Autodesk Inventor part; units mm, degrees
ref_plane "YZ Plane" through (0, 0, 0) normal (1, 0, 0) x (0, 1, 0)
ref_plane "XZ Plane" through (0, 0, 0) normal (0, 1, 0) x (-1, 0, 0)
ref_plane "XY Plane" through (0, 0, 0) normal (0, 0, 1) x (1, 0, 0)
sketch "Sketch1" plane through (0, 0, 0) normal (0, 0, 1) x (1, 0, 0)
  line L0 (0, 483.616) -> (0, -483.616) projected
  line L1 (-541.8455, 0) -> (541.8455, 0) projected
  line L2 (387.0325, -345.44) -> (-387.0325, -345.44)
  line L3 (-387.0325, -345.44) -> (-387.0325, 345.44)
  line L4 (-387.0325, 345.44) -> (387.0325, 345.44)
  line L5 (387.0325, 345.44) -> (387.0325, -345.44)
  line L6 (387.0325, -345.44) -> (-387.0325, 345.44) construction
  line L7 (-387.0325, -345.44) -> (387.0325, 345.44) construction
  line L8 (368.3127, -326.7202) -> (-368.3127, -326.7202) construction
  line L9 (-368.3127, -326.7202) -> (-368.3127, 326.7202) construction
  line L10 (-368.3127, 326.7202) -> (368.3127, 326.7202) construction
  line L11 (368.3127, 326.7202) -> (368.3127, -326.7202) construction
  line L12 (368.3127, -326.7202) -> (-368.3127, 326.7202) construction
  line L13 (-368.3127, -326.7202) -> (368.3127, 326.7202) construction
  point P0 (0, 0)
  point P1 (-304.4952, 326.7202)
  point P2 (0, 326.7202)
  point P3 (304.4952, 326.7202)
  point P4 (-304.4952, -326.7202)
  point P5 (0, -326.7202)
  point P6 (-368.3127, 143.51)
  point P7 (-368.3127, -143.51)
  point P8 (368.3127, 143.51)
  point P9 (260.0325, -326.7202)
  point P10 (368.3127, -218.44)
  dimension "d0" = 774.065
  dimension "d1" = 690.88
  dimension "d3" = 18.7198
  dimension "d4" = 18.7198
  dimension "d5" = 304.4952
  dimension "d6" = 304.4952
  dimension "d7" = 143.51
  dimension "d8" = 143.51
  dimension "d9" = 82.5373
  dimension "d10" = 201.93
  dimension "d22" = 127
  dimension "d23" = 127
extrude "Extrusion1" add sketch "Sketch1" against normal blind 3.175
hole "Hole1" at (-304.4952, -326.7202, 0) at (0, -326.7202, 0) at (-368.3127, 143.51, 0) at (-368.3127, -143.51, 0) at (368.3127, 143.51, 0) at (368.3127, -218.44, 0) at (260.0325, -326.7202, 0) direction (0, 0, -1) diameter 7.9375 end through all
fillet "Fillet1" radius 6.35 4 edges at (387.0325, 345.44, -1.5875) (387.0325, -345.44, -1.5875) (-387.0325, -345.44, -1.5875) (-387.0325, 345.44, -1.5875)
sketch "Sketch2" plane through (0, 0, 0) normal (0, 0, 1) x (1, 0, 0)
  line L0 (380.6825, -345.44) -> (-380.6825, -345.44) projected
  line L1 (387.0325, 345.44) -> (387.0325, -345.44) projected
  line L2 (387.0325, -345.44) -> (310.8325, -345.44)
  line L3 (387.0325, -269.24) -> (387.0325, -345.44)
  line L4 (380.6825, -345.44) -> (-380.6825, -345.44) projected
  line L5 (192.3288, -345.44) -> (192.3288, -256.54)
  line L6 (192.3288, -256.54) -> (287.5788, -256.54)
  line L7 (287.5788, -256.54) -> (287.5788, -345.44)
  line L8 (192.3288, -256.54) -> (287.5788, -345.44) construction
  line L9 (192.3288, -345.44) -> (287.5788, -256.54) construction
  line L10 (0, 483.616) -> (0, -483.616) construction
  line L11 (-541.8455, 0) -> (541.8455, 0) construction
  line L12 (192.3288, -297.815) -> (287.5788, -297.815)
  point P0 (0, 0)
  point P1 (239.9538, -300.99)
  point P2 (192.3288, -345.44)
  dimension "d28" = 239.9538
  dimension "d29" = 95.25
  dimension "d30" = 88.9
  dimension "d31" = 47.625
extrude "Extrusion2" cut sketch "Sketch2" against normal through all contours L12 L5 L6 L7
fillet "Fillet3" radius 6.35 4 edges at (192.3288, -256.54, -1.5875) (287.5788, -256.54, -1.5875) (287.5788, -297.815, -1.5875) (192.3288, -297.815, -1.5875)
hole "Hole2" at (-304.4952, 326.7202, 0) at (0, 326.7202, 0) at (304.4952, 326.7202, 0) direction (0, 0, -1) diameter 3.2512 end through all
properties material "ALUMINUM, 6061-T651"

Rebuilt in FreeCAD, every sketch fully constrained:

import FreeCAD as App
import Part
import Sketcher
Q = App.Units.Quantity


def edges_at(feature, points):
    """Names of the edges that pass closest to the given points."""
    edges = feature.Shape.Edges
    near = lambda p: min(range(len(edges)), key=lambda i: edges[i].distToShape(Part.Vertex(*p))[0])
    return sorted({f"Edge{near(p) + 1}" for p in points})

doc = App.newDocument("Part")
body = doc.addObject("PartDesign::Body", "Body")

sketch1 = doc.addObject("Sketcher::SketchObject", "Sketch")
body.addObject(sketch1)
sketch1.AttachmentSupport = (doc.XY_Plane, [""])
sketch1.MapMode = "FlatFace"
sketch1.addGeometry([
    Part.LineSegment(App.Vector(387.0325, 345.44, 0), App.Vector(-387.0325, 345.44, 0)),
    Part.LineSegment(App.Vector(-387.0325, 345.44, 0), App.Vector(-387.0325, -345.44, 0)),
    Part.LineSegment(App.Vector(-387.0325, -345.44, 0), App.Vector(387.0325, -345.44, 0)),
    Part.LineSegment(App.Vector(387.0325, -345.44, 0), App.Vector(387.0325, 345.44, 0)),
], False)
sketch1.addConstraint([
    Sketcher.Constraint("Coincident", 0, 2, 1, 1),
    Sketcher.Constraint("Coincident", 1, 2, 2, 1),
    Sketcher.Constraint("Coincident", 2, 2, 3, 1),
    Sketcher.Constraint("Coincident", 3, 2, 0, 1),
    Sketcher.Constraint("Horizontal", 0),
    Sketcher.Constraint("Vertical", 1),
    Sketcher.Constraint("Horizontal", 2),
    Sketcher.Constraint("Vertical", 3),
    Sketcher.Constraint("Symmetric", 0, 2, 2, 2, -1, 1),
    Sketcher.Constraint("DistanceY", 1, 2, 1, 1, Q("27.2 in")),
    Sketcher.Constraint("DistanceX", 0, 2, 0, 1, Q("30.475 in")),
])
pad1 = doc.addObject("PartDesign::Pad", "Pad")
body.addObject(pad1)
pad1.Profile = sketch1
pad1.Length = Q("0.125 in")
pad1.Reversed = True

sketch2 = doc.addObject("Sketcher::SketchObject", "Sketch001")
body.addObject(sketch2)
sketch2.AttachmentSupport = (doc.XY_Plane, [""])
sketch2.MapMode = "FlatFace"
sketch2.addGeometry([
    Part.Circle(App.Vector(-304.4952, -326.7202, 0), App.Vector(0, 0, 1), 3.96875),
    Part.Circle(App.Vector(0, -326.7202, 0), App.Vector(0, 0, 1), 3.96875),
    Part.Circle(App.Vector(-368.3127, 143.51, 0), App.Vector(0, 0, 1), 3.96875),
    Part.Circle(App.Vector(-368.3127, -143.51, 0), App.Vector(0, 0, 1), 3.96875),
    Part.Circle(App.Vector(368.3127, 143.51, 0), App.Vector(0, 0, 1), 3.96875),
    Part.Circle(App.Vector(368.3127, -218.44, 0), App.Vector(0, 0, 1), 3.96875),
    Part.Circle(App.Vector(260.0325, -326.7202, 0), App.Vector(0, 0, 1), 3.96875),
], False)
sketch2.addConstraint([
    Sketcher.Constraint("Equal", 0, 1),
    Sketcher.Constraint("Equal", 1, 2),
    Sketcher.Constraint("Equal", 2, 3),
    Sketcher.Constraint("Equal", 3, 4),
    Sketcher.Constraint("Equal", 4, 5),
    Sketcher.Constraint("Equal", 5, 6),
    Sketcher.Constraint("Symmetric", 3, 3, 4, 3, -1, 1),
    Sketcher.Constraint("Symmetric", 2, 3, 4, 3, -2),
    Sketcher.Constraint("PointOnObject", 1, 3, -2),
    Sketcher.Constraint("Horizontal", 0, 3, 1, 3),
    Sketcher.Constraint("Horizontal", 1, 3, 6, 3),
    Sketcher.Constraint("Vertical", 4, 3, 5, 3),
    Sketcher.Constraint("Diameter", 0, Q("0.3125 in")),
    Sketcher.Constraint("DistanceY", 5, 3, -1, 1, Q("8.6 in")),
    Sketcher.Constraint("DistanceY", 3, 3, 2, 3, Q("11.3 in")),
    Sketcher.Constraint("DistanceX", 0, 3, -1, 1, Q("11.988 in")),
    Sketcher.Constraint("DistanceY", 0, 3, -1, 1, Q("12.863 in")),
    Sketcher.Constraint("DistanceX", 2, 3, 4, 3, Q("29.001 in")),
    Sketcher.Constraint("DistanceX", 6, 3, 5, 3, Q("4.263 in")),
])
doc.recompute()
hole = doc.addObject("PartDesign::Hole", "Hole")
body.addObject(hole)
hole.Profile = sketch2
hole.ThreadType = "None"
hole.Diameter = Q("0.3125 in")
hole.DepthType = "ThroughAll"
doc.recompute()

fillet = doc.addObject("PartDesign::Fillet", "Fillet")
body.addObject(fillet)
fillet.Base = (hole, edges_at(hole, [
    (387.033, 345.44, -1.587),
    (387.033, -345.44, -1.587),
    (-387.033, -345.44, -1.587),
    (-387.033, 345.44, -1.587),
]))
fillet.Radius = Q("0.25 in")

sketch3 = doc.addObject("Sketcher::SketchObject", "Sketch002")
body.addObject(sketch3)
sketch3.AttachmentSupport = (doc.XY_Plane, [""])
sketch3.MapMode = "FlatFace"
sketch3.addGeometry([
    Part.LineSegment(App.Vector(192.3288, -297.815, 0), App.Vector(287.5788, -297.815, 0)),
    Part.LineSegment(App.Vector(287.5788, -297.815, 0), App.Vector(287.5788, -256.54, 0)),
    Part.LineSegment(App.Vector(287.5788, -256.54, 0), App.Vector(192.3288, -256.54, 0)),
    Part.LineSegment(App.Vector(192.3288, -256.54, 0), App.Vector(192.3288, -297.815, 0)),
], False)
sketch3.addConstraint([
    Sketcher.Constraint("Coincident", 0, 2, 1, 1),
    Sketcher.Constraint("Coincident", 1, 2, 2, 1),
    Sketcher.Constraint("Coincident", 2, 2, 3, 1),
    Sketcher.Constraint("Coincident", 3, 2, 0, 1),
    Sketcher.Constraint("Horizontal", 0),
    Sketcher.Constraint("Vertical", 1),
    Sketcher.Constraint("Horizontal", 2),
    Sketcher.Constraint("Vertical", 3),
    Sketcher.Constraint("DistanceX", 0, 1, 0, 2, Q("3.75 in")),
    Sketcher.Constraint("DistanceY", 1, 2, -1, 1, Q("10.1 in")),
    Sketcher.Constraint("DistanceY", 1, 1, 1, 2, Q("1.625 in")),
    Sketcher.Constraint("DistanceX", -1, 1, 0, 2, Q("11.322 in")),
])
pocket1 = doc.addObject("PartDesign::Pocket", "Pocket")
body.addObject(pocket1)
pocket1.Profile = sketch3
pocket1.Type = "ThroughAll"
doc.recompute()

fillet2 = doc.addObject("PartDesign::Fillet", "Fillet001")
body.addObject(fillet2)
fillet2.Base = (pocket1, edges_at(pocket1, [
    (192.329, -256.54, -1.587),
    (287.579, -256.54, -1.587),
    (287.579, -297.815, -1.587),
    (192.329, -297.815, -1.587),
]))
fillet2.Radius = Q("0.25 in")

sketch4 = doc.addObject("Sketcher::SketchObject", "Sketch003")
body.addObject(sketch4)
sketch4.AttachmentSupport = (doc.XY_Plane, [""])
sketch4.MapMode = "FlatFace"
sketch4.addGeometry([
    Part.Circle(App.Vector(-304.4952, 326.7202, 0), App.Vector(0, 0, 1), 1.6256),
    Part.Circle(App.Vector(0, 326.7202, 0), App.Vector(0, 0, 1), 1.6256),
    Part.Circle(App.Vector(304.4952, 326.7202, 0), App.Vector(0, 0, 1), 1.6256),
], False)
sketch4.addConstraint([
    Sketcher.Constraint("Equal", 0, 1),
    Sketcher.Constraint("Equal", 1, 2),
    Sketcher.Constraint("Symmetric", 0, 3, 2, 3, -2),
    Sketcher.Constraint("PointOnObject", 1, 3, -2),
    Sketcher.Constraint("Horizontal", 0, 3, 1, 3),
    Sketcher.Constraint("Diameter", 0, Q("0.128 in")),
    Sketcher.Constraint("DistanceX", 0, 3, -1, 1, Q("11.988 in")),
    Sketcher.Constraint("DistanceY", -1, 1, 0, 3, Q("12.863 in")),
])
doc.recompute()
hole2 = doc.addObject("PartDesign::Hole", "Hole001")
body.addObject(hole2)
hole2.Profile = sketch4
hole2.ThreadType = "None"
hole2.Diameter = Q("0.128 in")
hole2.DepthType = "ThroughAll"

doc.recompute()
